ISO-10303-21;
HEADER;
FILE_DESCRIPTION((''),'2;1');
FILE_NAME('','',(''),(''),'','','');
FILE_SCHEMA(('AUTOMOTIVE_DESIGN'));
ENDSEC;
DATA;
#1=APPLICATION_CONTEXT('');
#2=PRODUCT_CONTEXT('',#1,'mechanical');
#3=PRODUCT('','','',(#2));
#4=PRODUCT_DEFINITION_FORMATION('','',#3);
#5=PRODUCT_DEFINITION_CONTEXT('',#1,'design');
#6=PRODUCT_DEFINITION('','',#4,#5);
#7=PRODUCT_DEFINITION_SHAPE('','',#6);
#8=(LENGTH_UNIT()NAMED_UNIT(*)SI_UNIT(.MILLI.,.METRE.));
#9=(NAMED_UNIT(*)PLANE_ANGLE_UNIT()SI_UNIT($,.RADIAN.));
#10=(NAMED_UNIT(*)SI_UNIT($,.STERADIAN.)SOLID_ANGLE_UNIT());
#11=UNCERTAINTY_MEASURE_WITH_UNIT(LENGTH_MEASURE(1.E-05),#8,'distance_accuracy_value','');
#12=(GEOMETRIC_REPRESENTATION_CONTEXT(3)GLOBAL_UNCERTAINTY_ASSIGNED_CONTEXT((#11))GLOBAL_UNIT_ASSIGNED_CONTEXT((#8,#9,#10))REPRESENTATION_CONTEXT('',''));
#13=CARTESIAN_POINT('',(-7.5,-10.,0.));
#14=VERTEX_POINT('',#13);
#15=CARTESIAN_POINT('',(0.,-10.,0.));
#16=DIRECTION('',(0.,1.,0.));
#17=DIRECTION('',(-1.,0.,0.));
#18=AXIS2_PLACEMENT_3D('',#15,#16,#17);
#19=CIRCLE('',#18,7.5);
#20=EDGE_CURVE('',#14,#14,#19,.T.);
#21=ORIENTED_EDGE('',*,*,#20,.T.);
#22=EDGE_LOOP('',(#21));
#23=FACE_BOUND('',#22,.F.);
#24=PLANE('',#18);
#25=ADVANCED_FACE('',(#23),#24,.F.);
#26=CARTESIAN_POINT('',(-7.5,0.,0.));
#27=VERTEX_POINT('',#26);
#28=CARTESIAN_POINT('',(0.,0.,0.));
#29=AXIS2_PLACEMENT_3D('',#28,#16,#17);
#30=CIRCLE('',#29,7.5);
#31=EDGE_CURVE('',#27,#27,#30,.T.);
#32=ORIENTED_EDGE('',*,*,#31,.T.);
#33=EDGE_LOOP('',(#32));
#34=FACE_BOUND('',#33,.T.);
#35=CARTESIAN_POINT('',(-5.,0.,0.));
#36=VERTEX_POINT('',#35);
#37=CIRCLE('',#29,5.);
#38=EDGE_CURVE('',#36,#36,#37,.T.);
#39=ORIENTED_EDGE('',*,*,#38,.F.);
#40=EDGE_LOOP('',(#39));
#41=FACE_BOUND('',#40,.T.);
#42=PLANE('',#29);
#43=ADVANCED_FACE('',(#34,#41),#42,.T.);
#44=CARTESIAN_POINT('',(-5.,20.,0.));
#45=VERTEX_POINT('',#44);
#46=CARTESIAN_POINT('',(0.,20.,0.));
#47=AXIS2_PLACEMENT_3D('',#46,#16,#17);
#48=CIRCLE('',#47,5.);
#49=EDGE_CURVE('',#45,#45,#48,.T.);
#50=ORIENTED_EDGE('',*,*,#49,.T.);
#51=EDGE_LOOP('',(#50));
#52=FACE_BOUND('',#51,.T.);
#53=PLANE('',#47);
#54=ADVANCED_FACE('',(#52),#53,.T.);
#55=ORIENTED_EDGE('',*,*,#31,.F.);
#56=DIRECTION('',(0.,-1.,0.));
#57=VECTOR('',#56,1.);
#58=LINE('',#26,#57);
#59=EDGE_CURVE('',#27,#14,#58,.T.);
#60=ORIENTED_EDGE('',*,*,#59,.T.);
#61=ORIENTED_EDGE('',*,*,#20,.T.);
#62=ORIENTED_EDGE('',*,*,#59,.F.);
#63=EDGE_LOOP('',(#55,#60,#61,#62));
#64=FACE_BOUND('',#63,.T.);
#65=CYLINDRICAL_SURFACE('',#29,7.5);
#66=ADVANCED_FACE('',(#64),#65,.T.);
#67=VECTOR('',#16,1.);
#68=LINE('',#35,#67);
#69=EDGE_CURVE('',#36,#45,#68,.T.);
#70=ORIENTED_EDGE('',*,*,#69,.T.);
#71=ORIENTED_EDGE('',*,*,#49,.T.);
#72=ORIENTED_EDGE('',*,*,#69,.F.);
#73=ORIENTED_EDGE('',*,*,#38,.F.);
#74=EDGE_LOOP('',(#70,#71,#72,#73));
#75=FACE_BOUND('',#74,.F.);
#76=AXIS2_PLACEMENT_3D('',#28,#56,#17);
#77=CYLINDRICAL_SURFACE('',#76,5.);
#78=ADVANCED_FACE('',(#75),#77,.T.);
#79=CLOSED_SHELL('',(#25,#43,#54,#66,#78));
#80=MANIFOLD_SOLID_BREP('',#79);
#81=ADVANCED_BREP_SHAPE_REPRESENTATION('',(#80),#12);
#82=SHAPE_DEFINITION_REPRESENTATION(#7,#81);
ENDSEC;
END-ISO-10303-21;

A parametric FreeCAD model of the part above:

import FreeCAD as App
import Part
import Sketcher
from FreeCAD import Vector

doc = App.newDocument("Part")
body = doc.addObject("PartDesign::Body", "Body")

sketch1 = doc.addObject("Sketcher::SketchObject", "Sketch")
body.addObject(sketch1)
sketch1.AttachmentSupport = (doc.XZ_Plane, [""])
sketch1.MapMode = "FlatFace"
sketch1.addGeometry(Part.Circle(Vector(0, 0, 0), Vector(0, 0, 1), 5), False)
sketch1.addConstraint(Sketcher.Constraint("Coincident", 0, 3, -1, 1))
sketch1.addConstraint(Sketcher.Constraint("Diameter", 0, 10.0))
pad1 = doc.addObject("PartDesign::Pad", "Pad")
body.addObject(pad1)
pad1.Profile = sketch1
pad1.Length = 20
pad1.Reversed = True

sketch2 = doc.addObject("Sketcher::SketchObject", "Sketch001")
body.addObject(sketch2)
sketch2.AttachmentSupport = (doc.XZ_Plane, [""])
sketch2.MapMode = "FlatFace"
sketch2.addGeometry(Part.Circle(Vector(0, 0, 0), Vector(0, 0, 1), 8), False)
sketch2.addConstraint(Sketcher.Constraint("Coincident", 0, 3, -1, 1))
sketch2.addConstraint(Sketcher.Constraint("Diameter", 0, 15.0))
pad2 = doc.addObject("PartDesign::Pad", "Pad001")
body.addObject(pad2)
pad2.Profile = sketch2
pad2.Length = 10

doc.recompute()
